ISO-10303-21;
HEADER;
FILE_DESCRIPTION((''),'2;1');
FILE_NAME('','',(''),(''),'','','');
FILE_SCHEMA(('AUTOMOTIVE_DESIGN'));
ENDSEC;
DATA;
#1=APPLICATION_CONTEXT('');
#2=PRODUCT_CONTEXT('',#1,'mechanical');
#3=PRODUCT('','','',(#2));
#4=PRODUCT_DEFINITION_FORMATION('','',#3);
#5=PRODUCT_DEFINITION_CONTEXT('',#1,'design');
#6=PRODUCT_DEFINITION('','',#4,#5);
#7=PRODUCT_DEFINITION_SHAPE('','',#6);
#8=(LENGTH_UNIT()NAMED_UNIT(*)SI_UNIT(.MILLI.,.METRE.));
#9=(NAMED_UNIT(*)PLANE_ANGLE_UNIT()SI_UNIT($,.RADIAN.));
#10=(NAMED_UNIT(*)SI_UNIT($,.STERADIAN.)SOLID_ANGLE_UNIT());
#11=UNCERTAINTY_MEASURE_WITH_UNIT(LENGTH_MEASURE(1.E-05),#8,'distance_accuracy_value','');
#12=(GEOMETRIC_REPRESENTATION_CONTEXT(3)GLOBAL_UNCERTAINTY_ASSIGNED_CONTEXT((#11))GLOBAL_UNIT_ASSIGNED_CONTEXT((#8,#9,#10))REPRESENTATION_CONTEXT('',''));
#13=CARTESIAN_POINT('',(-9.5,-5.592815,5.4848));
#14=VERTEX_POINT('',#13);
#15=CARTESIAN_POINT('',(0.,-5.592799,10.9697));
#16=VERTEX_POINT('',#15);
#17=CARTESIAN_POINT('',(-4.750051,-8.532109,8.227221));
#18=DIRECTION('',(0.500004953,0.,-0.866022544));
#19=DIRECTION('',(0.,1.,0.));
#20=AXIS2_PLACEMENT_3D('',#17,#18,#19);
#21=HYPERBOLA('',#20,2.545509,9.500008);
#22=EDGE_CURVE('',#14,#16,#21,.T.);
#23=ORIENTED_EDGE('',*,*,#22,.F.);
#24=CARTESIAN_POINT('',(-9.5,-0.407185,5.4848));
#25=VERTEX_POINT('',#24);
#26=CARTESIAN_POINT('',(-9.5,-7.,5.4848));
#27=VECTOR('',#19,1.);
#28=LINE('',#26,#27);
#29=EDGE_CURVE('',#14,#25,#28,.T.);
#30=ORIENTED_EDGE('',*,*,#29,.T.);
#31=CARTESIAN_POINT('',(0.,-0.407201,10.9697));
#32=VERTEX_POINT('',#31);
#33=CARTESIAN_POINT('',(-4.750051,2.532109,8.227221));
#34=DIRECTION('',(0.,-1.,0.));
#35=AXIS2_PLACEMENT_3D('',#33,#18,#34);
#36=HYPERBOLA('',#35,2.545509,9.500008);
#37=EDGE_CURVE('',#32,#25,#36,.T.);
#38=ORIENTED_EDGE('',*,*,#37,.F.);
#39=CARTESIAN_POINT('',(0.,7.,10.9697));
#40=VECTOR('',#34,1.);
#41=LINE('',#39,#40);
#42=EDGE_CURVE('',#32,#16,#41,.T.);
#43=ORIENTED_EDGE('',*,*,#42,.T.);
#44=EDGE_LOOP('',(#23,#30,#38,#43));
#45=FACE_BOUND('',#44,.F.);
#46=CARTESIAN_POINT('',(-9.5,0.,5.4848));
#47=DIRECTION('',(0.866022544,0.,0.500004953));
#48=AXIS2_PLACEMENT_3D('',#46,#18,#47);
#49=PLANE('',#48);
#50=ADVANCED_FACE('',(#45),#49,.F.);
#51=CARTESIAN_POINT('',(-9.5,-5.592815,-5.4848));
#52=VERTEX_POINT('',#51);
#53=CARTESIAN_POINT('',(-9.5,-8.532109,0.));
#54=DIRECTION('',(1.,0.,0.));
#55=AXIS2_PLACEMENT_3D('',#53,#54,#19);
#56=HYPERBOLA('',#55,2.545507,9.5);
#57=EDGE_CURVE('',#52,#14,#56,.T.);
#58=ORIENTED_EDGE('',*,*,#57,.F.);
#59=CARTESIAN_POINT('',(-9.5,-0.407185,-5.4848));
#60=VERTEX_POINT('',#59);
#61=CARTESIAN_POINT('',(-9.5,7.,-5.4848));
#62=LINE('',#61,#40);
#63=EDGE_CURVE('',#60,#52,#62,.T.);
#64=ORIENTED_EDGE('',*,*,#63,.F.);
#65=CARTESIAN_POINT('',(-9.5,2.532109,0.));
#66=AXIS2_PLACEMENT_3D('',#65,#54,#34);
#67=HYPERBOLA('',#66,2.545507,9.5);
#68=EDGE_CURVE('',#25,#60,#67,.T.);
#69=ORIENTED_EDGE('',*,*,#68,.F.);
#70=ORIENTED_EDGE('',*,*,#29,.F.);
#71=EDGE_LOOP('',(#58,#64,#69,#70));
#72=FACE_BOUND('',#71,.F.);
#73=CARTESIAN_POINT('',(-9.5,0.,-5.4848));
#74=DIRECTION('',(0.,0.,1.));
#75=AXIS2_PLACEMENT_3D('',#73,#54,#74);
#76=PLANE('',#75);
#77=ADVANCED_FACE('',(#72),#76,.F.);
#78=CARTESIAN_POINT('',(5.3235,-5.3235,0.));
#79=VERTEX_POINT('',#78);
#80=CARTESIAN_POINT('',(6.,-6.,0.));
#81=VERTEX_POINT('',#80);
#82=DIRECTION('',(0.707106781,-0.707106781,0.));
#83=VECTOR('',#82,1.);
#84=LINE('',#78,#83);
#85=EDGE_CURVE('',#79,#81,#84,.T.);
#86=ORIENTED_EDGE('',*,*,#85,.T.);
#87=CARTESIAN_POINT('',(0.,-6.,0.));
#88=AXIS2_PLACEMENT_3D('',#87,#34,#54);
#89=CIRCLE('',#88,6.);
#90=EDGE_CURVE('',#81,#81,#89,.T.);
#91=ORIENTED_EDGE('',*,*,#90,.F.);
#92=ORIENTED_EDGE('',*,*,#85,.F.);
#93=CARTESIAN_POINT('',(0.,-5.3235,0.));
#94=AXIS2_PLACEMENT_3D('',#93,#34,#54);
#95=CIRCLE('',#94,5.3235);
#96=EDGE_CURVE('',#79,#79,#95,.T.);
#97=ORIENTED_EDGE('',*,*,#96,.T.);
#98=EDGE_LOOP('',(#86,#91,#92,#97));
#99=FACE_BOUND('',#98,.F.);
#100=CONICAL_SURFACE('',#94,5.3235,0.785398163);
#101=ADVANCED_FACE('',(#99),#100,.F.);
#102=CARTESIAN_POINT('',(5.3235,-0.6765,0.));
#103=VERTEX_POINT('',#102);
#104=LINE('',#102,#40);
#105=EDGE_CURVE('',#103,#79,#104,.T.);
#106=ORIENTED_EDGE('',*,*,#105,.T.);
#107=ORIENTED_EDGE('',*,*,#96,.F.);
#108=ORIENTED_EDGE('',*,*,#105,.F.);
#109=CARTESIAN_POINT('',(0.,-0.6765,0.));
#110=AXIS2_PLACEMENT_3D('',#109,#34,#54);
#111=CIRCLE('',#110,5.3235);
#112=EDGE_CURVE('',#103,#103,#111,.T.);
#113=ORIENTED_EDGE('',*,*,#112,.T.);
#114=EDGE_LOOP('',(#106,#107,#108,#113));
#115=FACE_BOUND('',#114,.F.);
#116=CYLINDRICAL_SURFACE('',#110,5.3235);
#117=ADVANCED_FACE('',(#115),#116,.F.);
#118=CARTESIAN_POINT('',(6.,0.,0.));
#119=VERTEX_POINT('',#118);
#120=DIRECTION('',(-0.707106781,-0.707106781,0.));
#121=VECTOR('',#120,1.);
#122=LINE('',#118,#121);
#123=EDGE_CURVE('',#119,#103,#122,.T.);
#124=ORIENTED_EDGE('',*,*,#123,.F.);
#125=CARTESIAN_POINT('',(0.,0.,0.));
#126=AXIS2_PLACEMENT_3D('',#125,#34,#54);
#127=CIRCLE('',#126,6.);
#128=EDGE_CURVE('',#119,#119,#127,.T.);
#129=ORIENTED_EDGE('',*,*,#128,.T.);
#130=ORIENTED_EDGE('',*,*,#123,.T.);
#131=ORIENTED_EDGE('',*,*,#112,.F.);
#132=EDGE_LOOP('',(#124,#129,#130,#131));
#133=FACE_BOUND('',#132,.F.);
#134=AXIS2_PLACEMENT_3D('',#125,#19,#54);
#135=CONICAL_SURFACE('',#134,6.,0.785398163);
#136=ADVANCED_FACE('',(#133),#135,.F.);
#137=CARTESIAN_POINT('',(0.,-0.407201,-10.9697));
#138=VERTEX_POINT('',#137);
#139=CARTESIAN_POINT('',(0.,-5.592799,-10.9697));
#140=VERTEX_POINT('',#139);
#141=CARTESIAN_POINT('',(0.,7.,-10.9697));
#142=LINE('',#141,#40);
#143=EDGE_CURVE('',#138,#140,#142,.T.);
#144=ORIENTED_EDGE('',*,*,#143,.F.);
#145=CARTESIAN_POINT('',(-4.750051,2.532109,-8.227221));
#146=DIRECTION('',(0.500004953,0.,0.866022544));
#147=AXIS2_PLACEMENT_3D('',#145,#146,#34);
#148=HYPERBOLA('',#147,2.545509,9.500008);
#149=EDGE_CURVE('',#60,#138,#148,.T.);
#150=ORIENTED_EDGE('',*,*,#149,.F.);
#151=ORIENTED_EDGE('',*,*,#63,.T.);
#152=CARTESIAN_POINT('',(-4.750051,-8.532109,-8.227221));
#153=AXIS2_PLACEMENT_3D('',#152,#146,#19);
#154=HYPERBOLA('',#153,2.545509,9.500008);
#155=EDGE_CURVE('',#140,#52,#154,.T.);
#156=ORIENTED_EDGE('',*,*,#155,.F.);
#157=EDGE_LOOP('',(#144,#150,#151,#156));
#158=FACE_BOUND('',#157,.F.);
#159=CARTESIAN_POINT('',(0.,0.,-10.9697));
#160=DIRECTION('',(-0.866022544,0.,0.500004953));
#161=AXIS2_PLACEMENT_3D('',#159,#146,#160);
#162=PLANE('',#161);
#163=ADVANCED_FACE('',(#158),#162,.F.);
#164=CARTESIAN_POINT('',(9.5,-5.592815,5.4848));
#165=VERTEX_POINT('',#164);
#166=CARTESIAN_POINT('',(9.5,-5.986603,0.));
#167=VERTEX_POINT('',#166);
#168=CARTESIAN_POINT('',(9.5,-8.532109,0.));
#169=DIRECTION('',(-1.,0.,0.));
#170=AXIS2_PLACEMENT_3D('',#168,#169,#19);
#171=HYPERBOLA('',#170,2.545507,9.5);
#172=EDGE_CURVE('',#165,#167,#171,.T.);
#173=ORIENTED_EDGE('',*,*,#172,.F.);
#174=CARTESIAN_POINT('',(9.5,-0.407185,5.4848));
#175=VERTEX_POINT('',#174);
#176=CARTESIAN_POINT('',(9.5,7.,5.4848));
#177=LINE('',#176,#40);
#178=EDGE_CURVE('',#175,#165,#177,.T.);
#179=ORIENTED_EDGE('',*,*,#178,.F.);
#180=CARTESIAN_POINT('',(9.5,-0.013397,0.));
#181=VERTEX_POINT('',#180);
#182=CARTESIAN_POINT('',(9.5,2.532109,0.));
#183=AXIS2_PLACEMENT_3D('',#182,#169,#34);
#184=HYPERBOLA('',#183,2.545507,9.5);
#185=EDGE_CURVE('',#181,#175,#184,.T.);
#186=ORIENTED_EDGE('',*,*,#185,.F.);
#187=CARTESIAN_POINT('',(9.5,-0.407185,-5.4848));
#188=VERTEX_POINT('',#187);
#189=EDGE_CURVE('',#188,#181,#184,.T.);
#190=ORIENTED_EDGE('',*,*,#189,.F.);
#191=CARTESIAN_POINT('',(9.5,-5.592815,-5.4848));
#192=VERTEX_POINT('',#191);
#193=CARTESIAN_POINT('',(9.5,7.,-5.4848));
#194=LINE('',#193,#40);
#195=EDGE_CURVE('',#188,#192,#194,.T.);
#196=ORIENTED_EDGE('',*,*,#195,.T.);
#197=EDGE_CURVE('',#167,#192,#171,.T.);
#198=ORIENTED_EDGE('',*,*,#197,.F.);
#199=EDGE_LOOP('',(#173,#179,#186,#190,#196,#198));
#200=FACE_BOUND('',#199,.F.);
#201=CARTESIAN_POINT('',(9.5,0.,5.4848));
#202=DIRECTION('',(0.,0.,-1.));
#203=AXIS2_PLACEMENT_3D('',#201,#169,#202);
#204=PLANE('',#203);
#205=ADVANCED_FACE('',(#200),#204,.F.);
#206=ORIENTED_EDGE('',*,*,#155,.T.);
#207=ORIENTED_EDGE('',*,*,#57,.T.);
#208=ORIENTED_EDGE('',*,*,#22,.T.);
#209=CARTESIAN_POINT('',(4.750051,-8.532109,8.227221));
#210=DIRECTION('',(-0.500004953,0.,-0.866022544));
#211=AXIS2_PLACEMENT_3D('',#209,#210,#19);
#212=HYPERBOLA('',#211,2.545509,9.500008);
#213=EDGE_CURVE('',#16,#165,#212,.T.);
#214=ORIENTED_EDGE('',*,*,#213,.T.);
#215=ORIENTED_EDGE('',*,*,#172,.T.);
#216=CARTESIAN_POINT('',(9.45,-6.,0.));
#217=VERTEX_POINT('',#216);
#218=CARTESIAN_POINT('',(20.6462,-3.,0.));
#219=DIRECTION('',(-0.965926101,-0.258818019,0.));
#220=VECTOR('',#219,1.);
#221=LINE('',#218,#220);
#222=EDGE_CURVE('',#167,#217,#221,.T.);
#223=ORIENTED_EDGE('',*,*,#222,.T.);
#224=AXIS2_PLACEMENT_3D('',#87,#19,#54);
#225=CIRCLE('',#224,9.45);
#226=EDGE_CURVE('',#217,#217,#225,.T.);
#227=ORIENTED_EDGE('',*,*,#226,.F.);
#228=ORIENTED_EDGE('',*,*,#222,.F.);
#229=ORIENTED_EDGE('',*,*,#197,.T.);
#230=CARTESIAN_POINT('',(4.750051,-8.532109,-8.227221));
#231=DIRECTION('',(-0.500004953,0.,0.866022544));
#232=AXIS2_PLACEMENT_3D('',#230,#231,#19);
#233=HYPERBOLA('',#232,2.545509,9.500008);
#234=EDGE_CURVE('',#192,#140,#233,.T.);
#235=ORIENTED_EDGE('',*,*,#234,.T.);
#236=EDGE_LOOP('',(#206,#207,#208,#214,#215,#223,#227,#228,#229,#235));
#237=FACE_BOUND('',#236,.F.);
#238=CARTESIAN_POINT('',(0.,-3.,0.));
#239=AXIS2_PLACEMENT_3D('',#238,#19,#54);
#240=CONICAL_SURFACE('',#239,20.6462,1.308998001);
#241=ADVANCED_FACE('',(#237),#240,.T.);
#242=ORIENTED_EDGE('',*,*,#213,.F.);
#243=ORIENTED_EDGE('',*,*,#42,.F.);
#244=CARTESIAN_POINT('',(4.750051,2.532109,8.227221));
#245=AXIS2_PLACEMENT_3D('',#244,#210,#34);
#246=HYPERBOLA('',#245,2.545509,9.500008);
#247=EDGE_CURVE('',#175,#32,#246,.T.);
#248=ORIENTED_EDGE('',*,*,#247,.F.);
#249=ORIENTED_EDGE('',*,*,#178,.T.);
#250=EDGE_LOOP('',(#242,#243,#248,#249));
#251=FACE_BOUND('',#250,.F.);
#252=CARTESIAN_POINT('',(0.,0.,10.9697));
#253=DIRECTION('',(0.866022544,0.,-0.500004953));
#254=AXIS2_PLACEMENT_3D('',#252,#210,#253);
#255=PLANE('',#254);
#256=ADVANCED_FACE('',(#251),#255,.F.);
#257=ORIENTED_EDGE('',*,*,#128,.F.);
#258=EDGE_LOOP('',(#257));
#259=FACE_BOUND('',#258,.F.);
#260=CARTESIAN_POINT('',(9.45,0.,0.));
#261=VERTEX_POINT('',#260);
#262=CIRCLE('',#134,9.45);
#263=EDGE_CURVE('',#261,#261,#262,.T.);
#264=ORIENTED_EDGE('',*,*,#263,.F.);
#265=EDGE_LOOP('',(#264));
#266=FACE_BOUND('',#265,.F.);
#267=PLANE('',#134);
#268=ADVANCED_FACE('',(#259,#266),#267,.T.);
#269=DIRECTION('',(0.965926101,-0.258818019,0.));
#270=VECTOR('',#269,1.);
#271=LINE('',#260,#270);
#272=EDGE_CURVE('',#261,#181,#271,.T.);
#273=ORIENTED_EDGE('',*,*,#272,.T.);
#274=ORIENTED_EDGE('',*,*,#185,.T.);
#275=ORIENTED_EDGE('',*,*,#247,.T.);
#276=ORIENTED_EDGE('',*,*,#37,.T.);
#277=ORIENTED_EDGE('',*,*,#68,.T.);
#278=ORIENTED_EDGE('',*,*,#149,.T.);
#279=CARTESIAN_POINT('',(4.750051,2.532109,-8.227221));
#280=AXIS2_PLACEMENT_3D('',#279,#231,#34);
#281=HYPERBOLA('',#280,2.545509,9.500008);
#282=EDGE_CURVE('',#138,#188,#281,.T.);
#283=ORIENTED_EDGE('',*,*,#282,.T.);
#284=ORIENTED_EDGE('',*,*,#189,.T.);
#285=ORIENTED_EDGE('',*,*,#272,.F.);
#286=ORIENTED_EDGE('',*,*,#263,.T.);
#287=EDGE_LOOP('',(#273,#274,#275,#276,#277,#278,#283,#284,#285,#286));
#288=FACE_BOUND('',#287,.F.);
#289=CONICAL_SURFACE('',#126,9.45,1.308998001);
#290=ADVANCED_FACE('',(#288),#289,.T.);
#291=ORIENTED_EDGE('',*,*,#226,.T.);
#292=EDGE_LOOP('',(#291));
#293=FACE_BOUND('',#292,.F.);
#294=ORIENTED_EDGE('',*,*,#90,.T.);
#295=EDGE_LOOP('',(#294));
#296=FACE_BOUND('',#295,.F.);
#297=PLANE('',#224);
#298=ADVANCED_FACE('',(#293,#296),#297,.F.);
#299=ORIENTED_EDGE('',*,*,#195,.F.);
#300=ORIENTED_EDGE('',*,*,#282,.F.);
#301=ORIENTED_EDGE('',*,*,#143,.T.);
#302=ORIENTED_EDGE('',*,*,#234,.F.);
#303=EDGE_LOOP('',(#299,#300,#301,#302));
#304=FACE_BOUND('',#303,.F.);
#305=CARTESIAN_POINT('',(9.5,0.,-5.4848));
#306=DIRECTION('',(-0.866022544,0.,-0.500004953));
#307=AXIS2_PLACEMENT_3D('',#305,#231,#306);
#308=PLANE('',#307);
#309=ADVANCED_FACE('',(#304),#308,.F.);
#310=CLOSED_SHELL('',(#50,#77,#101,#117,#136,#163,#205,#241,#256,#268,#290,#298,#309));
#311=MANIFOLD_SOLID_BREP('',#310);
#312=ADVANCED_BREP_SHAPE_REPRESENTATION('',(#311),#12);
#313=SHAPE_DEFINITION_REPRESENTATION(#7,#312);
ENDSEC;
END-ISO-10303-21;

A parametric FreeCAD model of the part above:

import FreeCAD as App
import Part
import Sketcher
Q = App.Units.Quantity


def add_polygon(sketch, points):
    """Adds a closed chain of lines whose ends are joined by coincident constraints."""
    first, n = sketch.GeometryCount, len(points)
    for a, b in zip(points, points[1:] + points[:1]):
        sketch.addGeometry(Part.LineSegment(App.Vector(*a, 0), App.Vector(*b, 0)), False)
    for i in range(n):
        sketch.addConstraint(Sketcher.Constraint("Coincident", first + i, 2, first + (i + 1) % n, 1))

doc = App.newDocument("Part")
body = doc.addObject("PartDesign::Body", "Body")

# Sketch on XY plane
sketch1 = doc.addObject("Sketcher::SketchObject", "Sketch")
body.addObject(sketch1)
sketch1.AttachmentSupport = (doc.XY_Plane, [""])
sketch1.MapMode = "FlatFace"
add_polygon(sketch1, [(0, 0), (0, -6), (9, -6), (21, -3), (9, 0)])  # lines 0-4
sketch1.addConstraint([
    Sketcher.Constraint("Vertical", 0),
    Sketcher.Constraint("Horizontal", 1),
    Sketcher.Constraint("Horizontal", 4),
    Sketcher.Constraint("Coincident", 4, 2, -1, 1),
    Sketcher.Constraint("Vertical", 1, 2, 3, 2),
    Sketcher.Constraint("Equal", 2, 3),
    Sketcher.Constraint("DistanceY", 0, 2, 0, 1, 6.0),
    Sketcher.Constraint("Angle", 2, Q("15 deg")),
    Sketcher.Constraint("DistanceX", 1, 1, 1, 2, 9.45),
])
revolution = doc.addObject("PartDesign::Revolution", "Revolution")
body.addObject(revolution)
revolution.Profile = sketch1
revolution.ReferenceAxis = (sketch1, ["V_Axis"])
revolution.Angle = 360

# Sketch on XZ plane
sketch2 = doc.addObject("Sketcher::SketchObject", "Sketch001")
body.addObject(sketch2)
sketch2.AttachmentSupport = (doc.XZ_Plane, [""])
sketch2.MapMode = "FlatFace"
add_polygon(sketch2, [(38, -38), (-38, -38), (-38, 38), (38, 38)])  # lines 0-3
add_polygon(sketch2, [(0, 11), (-10, 5), (-10, -5), (0, -11), (10, -5), (10, 5)])  # lines 4-9
sketch2.addConstraint([
    Sketcher.Constraint("Horizontal", 0),
    Sketcher.Constraint("Vertical", 1),
    Sketcher.Constraint("Horizontal", 2),
    Sketcher.Constraint("Vertical", 3),
    Sketcher.Constraint("Vertical", 5),
    Sketcher.Constraint("Vertical", 8),
    Sketcher.Constraint("Symmetric", 0, 2, 2, 2, -1, 1),
    Sketcher.Constraint("Symmetric", 4, 2, 7, 2, -1, 1),
    Sketcher.Constraint("Symmetric", 6, 2, 9, 2, -1, 1),
    Sketcher.Constraint("PointOnObject", 6, 2, -2),
    Sketcher.Constraint("Parallel", 6, 9),
    Sketcher.Constraint("Horizontal", 5, 2, 7, 2),
    Sketcher.Constraint("Equal", 2, 1),
    Sketcher.Constraint("DistanceX", 0, 2, 0, 1, 76.0),
    Sketcher.Constraint("Angle", 4, Q("-149.9997 deg")),
    Sketcher.Constraint("DistanceX", 5, 2, 7, 2, 19.0),
    Sketcher.Constraint("DistanceY", 5, 2, 5, 1, 10.9696),
])
pocket1 = doc.addObject("PartDesign::Pocket", "Pocket")
body.addObject(pocket1)
pocket1.Profile = sketch2
pocket1.Length = 14
pocket1.Midplane = True

# Sketch on XY plane
sketch3 = doc.addObject("Sketcher::SketchObject", "Sketch002")
body.addObject(sketch3)
sketch3.AttachmentSupport = (doc.XY_Plane, [""])
sketch3.MapMode = "FlatFace"
add_polygon(sketch3, [(0, 0), (0, -6), (6, -6), (5.3, -5.3), (5.3, -0.7), (6, 0)])  # lines 0-5
sketch3.addConstraint([
    Sketcher.Constraint("Vertical", 0),
    Sketcher.Constraint("Horizontal", 1),
    Sketcher.Constraint("Vertical", 3),
    Sketcher.Constraint("Horizontal", 5),
    Sketcher.Constraint("Coincident", 5, 2, -1, 1),
    Sketcher.Constraint("Perpendicular", 2, 4),
    Sketcher.Constraint("Vertical", 1, 2, 4, 2),
    Sketcher.Constraint("Equal", 5, 0),
    Sketcher.Constraint("Equal", 2, 4),
    Sketcher.Constraint("DistanceX", 1, 1, 1, 2, 6.0),
    Sketcher.Constraint("DistanceY", 3, 1, 3, 2, 4.647),
])
groove = doc.addObject("PartDesign::Groove", "Groove")
body.addObject(groove)
groove.Profile = sketch3
groove.ReferenceAxis = (sketch3, ["V_Axis"])
groove.Angle = 360

doc.recompute()
